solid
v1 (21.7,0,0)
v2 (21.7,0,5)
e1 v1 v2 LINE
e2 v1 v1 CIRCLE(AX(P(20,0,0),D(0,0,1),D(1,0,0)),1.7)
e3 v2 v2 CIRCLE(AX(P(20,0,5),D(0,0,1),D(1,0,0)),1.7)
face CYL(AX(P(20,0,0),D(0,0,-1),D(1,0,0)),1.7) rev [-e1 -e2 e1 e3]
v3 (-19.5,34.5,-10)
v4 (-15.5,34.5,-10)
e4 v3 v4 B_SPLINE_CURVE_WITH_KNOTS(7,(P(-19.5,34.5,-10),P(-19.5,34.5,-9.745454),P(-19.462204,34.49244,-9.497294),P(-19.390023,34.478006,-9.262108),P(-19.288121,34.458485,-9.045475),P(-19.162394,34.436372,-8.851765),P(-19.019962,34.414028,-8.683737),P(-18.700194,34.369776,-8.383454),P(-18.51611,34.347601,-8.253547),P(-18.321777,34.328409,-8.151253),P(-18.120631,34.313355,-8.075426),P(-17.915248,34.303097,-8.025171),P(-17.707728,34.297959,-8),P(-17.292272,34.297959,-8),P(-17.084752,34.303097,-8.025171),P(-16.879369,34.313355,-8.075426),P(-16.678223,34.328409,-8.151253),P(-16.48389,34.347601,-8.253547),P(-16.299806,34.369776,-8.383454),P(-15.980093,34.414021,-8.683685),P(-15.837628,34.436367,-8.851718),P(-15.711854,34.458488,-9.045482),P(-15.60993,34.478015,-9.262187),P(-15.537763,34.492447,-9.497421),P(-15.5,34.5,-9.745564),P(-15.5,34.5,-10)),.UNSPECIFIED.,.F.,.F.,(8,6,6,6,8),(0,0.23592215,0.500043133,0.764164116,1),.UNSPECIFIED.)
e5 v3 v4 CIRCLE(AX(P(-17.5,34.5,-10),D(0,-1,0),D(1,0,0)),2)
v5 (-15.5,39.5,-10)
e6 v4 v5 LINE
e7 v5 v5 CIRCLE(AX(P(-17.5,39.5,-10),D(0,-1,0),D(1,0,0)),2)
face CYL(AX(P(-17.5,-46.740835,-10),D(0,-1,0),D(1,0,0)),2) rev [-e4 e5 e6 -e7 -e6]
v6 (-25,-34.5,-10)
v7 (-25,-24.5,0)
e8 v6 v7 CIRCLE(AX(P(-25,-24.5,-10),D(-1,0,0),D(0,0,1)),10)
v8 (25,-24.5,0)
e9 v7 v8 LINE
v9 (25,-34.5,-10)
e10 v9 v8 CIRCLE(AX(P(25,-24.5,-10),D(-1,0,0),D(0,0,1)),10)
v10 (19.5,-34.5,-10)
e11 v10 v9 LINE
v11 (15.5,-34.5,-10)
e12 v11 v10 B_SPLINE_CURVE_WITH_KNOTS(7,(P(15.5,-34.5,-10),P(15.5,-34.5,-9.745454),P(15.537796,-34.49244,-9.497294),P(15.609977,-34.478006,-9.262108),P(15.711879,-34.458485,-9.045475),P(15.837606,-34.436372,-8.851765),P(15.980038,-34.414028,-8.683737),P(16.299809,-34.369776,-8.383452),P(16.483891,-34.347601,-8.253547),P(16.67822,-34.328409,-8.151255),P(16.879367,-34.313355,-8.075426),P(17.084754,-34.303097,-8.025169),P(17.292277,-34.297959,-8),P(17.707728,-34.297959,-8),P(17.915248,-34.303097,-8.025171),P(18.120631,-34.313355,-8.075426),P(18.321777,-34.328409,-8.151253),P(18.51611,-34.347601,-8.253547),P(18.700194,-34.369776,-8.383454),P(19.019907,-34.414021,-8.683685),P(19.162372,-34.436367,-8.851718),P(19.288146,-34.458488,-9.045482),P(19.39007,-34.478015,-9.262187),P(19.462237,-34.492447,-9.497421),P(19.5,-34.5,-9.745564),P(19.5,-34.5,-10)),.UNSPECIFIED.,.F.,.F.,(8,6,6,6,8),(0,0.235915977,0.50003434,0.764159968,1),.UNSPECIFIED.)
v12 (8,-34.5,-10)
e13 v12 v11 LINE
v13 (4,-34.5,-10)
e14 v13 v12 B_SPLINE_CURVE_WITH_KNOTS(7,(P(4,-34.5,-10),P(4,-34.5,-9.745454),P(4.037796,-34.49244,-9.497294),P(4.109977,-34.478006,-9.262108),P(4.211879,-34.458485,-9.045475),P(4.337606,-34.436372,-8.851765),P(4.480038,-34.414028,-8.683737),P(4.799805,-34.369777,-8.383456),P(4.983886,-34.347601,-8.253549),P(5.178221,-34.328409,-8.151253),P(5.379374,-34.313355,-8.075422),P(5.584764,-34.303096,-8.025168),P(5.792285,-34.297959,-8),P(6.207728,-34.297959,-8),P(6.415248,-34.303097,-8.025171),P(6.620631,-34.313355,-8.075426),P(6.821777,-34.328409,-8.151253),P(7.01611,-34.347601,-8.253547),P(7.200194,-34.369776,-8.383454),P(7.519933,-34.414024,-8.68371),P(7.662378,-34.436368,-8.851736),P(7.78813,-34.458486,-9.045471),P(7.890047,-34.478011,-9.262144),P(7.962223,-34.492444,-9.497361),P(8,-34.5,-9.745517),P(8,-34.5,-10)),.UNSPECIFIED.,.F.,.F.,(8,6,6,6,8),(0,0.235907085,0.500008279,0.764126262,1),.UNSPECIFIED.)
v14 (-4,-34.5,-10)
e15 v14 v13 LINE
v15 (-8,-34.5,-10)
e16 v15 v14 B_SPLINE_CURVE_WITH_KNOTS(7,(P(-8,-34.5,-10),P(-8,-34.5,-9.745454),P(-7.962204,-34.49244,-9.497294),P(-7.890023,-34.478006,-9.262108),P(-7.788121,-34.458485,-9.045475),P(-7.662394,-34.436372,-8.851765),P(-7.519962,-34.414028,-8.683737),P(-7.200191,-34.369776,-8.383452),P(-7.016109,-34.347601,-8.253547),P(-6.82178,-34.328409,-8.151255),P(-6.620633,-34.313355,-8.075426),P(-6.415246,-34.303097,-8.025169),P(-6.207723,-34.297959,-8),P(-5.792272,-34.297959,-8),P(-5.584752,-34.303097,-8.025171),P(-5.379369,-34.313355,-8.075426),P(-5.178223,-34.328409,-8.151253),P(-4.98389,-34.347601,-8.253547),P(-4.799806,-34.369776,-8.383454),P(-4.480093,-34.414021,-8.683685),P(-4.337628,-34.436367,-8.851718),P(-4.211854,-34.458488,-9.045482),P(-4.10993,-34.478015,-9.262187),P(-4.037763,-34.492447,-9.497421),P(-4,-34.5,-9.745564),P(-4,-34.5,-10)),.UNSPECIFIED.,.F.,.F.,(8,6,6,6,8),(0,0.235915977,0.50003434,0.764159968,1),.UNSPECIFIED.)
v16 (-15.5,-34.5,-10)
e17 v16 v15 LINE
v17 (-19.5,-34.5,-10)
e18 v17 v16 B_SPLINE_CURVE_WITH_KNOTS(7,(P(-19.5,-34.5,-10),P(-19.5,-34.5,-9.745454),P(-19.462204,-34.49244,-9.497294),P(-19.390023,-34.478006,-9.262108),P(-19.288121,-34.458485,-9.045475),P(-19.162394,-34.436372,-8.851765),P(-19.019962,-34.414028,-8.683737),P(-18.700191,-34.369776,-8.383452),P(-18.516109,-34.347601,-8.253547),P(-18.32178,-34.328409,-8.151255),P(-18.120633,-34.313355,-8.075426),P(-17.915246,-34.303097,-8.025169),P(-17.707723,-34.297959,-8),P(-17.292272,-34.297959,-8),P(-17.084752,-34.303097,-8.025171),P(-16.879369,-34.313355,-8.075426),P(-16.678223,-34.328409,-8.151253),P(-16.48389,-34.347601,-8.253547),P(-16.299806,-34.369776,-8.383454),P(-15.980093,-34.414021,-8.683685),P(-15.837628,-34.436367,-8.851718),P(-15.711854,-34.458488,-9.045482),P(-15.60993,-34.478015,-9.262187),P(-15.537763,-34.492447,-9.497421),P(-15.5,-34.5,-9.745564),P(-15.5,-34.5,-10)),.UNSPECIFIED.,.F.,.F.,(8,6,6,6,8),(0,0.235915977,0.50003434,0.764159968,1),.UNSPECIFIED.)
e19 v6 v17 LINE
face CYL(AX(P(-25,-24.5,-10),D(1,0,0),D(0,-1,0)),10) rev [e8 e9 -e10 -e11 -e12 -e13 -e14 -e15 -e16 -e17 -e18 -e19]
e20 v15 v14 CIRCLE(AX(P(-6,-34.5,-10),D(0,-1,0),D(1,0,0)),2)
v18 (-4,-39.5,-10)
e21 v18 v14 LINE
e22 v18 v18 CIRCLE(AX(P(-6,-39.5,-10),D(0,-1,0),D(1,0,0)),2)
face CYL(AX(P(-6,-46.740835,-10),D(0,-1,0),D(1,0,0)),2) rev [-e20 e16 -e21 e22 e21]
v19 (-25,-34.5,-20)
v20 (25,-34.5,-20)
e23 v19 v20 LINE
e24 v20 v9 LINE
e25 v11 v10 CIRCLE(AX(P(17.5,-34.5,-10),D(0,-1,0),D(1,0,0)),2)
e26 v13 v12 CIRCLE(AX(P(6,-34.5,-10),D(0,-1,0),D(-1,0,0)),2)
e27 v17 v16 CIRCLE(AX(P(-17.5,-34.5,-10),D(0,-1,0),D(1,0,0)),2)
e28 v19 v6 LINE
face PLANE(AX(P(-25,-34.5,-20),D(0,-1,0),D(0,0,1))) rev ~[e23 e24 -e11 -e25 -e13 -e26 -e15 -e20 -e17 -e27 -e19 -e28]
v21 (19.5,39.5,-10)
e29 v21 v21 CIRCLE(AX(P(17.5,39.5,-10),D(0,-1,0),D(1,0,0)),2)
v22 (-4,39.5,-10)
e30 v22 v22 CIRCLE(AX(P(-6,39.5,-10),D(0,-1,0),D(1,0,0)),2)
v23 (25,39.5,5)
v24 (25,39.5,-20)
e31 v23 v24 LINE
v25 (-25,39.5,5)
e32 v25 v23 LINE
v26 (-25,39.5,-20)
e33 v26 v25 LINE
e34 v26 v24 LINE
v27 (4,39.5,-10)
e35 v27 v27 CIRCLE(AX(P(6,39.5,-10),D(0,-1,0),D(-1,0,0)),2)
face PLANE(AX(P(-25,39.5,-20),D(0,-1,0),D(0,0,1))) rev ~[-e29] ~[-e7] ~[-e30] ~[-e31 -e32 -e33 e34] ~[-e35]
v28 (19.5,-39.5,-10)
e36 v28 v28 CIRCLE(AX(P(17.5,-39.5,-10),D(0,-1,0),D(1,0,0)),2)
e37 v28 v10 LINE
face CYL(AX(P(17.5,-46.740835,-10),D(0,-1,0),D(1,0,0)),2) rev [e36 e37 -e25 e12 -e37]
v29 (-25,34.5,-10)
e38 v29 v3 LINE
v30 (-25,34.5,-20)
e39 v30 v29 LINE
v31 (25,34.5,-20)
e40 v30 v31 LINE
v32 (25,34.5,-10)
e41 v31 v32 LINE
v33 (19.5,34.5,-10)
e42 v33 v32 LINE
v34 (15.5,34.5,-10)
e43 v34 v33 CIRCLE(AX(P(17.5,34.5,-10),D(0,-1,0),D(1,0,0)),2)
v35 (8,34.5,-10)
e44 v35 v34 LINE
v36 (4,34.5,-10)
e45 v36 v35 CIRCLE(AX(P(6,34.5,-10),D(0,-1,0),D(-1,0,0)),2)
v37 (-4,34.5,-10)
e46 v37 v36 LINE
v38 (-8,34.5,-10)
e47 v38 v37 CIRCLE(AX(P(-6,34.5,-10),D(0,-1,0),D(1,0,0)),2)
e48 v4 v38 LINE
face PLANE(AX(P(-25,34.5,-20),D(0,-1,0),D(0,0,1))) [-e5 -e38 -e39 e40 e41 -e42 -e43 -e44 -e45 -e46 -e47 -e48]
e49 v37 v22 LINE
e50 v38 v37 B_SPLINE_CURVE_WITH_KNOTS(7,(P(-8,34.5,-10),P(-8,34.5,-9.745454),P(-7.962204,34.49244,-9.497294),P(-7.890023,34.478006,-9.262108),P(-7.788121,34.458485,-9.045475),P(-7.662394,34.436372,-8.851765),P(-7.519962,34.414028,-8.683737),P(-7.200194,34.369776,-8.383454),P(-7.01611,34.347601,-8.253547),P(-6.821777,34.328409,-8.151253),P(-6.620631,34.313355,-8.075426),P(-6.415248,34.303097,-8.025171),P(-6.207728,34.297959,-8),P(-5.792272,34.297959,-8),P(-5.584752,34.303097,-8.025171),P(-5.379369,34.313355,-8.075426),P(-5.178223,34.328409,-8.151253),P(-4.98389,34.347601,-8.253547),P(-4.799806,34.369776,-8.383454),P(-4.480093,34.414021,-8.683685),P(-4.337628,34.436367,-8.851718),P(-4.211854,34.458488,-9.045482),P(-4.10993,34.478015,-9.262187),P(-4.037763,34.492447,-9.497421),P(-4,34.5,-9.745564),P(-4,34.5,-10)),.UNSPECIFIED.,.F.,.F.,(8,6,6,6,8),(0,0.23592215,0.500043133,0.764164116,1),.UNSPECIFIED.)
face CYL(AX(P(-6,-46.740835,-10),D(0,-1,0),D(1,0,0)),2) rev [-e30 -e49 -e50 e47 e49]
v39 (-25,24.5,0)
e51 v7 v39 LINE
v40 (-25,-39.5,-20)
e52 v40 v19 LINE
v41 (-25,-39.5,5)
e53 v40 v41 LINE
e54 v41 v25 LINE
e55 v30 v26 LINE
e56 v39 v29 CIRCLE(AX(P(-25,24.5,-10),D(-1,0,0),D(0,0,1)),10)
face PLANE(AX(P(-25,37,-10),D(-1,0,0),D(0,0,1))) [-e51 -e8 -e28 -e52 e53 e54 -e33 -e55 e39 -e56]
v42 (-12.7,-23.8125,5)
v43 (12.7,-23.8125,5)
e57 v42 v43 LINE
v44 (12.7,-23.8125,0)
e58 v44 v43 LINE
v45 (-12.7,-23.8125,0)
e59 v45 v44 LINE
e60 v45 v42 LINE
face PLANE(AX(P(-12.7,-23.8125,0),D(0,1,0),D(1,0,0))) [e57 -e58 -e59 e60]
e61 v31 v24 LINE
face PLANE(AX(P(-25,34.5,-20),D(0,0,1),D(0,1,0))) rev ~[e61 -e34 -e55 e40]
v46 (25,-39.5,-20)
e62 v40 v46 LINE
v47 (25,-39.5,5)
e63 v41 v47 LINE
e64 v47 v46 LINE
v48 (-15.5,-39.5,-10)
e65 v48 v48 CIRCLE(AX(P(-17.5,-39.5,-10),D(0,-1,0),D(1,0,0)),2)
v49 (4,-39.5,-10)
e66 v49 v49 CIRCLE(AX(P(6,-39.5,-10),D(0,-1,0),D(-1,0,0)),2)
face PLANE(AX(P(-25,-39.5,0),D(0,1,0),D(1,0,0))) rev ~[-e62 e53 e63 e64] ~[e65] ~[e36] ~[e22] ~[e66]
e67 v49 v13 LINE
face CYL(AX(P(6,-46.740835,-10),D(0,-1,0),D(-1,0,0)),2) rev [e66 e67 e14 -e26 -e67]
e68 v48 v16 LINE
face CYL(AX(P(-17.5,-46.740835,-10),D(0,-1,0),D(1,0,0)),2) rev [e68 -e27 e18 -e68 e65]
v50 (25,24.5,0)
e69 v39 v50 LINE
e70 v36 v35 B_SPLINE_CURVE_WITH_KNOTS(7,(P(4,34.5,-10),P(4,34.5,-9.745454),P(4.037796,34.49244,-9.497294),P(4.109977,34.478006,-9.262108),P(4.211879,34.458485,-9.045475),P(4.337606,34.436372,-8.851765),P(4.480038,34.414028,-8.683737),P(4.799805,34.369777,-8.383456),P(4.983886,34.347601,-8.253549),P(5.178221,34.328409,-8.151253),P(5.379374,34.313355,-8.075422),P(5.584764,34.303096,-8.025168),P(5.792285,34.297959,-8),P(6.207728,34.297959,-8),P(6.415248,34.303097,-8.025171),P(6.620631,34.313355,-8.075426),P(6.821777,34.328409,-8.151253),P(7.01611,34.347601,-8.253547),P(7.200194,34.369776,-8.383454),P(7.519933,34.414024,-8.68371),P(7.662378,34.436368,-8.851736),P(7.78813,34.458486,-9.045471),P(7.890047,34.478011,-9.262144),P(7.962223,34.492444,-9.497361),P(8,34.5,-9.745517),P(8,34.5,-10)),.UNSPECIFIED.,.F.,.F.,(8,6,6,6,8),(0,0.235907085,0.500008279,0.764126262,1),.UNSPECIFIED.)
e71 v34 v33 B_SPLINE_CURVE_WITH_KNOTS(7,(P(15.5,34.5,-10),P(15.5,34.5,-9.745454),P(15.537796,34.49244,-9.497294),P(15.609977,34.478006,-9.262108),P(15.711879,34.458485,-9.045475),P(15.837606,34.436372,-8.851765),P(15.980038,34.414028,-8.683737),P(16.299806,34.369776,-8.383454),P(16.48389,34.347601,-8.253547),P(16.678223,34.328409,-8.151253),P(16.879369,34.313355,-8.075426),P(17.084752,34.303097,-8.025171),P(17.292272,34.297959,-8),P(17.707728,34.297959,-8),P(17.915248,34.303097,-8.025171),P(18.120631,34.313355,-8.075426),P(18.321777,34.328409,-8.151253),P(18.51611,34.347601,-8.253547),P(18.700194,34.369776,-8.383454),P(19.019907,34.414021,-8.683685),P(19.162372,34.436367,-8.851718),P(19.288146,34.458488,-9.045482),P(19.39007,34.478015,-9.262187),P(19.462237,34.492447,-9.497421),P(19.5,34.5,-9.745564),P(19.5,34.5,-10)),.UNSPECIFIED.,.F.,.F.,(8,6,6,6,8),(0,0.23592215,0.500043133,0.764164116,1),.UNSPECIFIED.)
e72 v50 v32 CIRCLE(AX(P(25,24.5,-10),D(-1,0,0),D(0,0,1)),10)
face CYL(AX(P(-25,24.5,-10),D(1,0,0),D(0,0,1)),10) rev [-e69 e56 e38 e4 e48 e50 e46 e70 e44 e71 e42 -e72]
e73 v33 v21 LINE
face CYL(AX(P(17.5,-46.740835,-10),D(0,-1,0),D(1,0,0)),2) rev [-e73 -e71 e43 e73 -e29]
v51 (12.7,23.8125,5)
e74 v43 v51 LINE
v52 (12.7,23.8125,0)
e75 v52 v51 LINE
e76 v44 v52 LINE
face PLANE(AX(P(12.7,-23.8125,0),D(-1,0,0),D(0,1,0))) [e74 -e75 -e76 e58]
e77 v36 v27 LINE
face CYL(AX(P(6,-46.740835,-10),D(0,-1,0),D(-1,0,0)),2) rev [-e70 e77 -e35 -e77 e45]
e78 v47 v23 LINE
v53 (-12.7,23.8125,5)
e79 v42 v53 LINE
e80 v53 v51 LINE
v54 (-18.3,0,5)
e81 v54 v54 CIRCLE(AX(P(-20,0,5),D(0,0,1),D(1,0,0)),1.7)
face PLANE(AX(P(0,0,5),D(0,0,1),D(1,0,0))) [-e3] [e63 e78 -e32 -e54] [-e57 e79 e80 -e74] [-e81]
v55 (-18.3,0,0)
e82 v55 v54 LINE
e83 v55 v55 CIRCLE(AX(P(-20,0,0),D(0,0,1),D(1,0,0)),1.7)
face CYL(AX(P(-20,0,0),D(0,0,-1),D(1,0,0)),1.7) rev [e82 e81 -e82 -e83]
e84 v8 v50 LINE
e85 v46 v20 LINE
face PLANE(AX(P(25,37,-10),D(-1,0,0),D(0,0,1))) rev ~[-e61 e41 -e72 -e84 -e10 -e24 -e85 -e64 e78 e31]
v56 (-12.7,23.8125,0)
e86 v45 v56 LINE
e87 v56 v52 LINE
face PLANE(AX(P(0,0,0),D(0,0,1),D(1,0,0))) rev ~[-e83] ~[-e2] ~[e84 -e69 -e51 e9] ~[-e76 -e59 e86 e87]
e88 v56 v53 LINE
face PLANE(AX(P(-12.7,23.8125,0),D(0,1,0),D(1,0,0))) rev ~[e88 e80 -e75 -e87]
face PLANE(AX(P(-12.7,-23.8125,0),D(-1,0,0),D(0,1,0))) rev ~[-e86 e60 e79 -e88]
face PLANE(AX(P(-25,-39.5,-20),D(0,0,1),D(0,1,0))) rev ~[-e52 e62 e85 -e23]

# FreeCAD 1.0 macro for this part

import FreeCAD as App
import Part
import Sketcher
from FreeCAD import Vector


def edges_at(feature, points):
    """Names of the edges that pass closest to the given points."""
    edges = feature.Shape.Edges
    near = lambda p: min(range(len(edges)), key=lambda i: edges[i].distToShape(Part.Vertex(*p))[0])
    return sorted({f"Edge{near(p) + 1}" for p in points})

doc = App.newDocument("Part")
body = doc.addObject("PartDesign::Body", "Body")

# Sketch on XY plane
sketch1 = body.newObject("Sketcher::SketchObject", "Sketch")
sketch1.AttachmentSupport = (doc.getObject("XY_Plane"), [""])
sketch1.MapMode = "FlatFace"
sketch1.addGeometry([
    Part.LineSegment(Vector(-25, 39.5, 0), Vector(-25, -39.5, 0)),  # 0
    Part.LineSegment(Vector(-25, -39.5, 0), Vector(25, -39.5, 0)),  # 1
    Part.LineSegment(Vector(25, -39.5, 0), Vector(25, 39.5, 0)),  # 2
    Part.LineSegment(Vector(25, 39.5, 0), Vector(-25, 39.5, 0)),  # 3
    Part.Circle(Vector(-20, 0, 0), Vector(0, 0, 1), 1.7),  # 4
    Part.LineSegment(Vector(12.7, -23.8125, 0), Vector(-12.7, -23.8125, 0)),  # 5
    Part.LineSegment(Vector(-12.7, -23.8125, 0), Vector(-12.7, 23.8125, 0)),  # 6
    Part.LineSegment(Vector(-12.7, 23.8125, 0), Vector(12.7, 23.8125, 0)),  # 7
    Part.LineSegment(Vector(12.7, 23.8125, 0), Vector(12.7, -23.8125, 0)),  # 8
    Part.Circle(Vector(20, 0, 0), Vector(0, 0, 1), 1.7),  # 9
], False)
sketch1.addConstraint([
    Sketcher.Constraint("Coincident", 0, 2, 1, 1),
    Sketcher.Constraint("Coincident", 1, 2, 2, 1),
    Sketcher.Constraint("Coincident", 2, 2, 3, 1),
    Sketcher.Constraint("Coincident", 3, 2, 0, 1),
    Sketcher.Constraint("Coincident", 5, 2, 6, 1),
    Sketcher.Constraint("Coincident", 6, 2, 7, 1),
    Sketcher.Constraint("Coincident", 7, 2, 8, 1),
    Sketcher.Constraint("Coincident", 8, 2, 5, 1),
    Sketcher.Constraint("Vertical", 0),
    Sketcher.Constraint("Horizontal", 1),
    Sketcher.Constraint("Vertical", 2),
    Sketcher.Constraint("Horizontal", 3),
    Sketcher.Constraint("Horizontal", 5),
    Sketcher.Constraint("Vertical", 6),
    Sketcher.Constraint("Horizontal", 7),
    Sketcher.Constraint("Vertical", 8),
    Sketcher.Constraint("Equal", 4, 9),
    Sketcher.Constraint("Symmetric", 4, 3, 9, 3, -1, 1),
    Sketcher.Constraint("Symmetric", 0, 2, 2, 2, -1, 1),
    Sketcher.Constraint("Symmetric", 5, 2, 7, 2, -1, 1),
    Sketcher.Constraint("PointOnObject", 4, 3, -1),
    Sketcher.Constraint("Diameter", 4, 3.4),
    Sketcher.Constraint("DistanceX", 1, 1, 1, 2, 50.0),
    Sketcher.Constraint("DistanceY", 0, 2, 0, 1, 79.0),
    Sketcher.Constraint("DistanceX", 5, 2, 5, 1, 25.4),
    Sketcher.Constraint("DistanceX", 4, 3, -1, 1, 20.0),
    Sketcher.Constraint("DistanceY", 6, 1, 6, 2, 47.625),
])
pad1 = body.newObject("PartDesign::Pad", "Pad")
pad1.Profile = sketch1
pad1.Length = 5

# Sketch on YZ plane
sketch2 = body.newObject("Sketcher::SketchObject", "Sketch001")
sketch2.AttachmentSupport = (doc.getObject("YZ_Plane"), [""])
sketch2.MapMode = "FlatFace"
sketch2.AttachmentOffset = App.Placement(Vector(0, 0, -25), App.Rotation())
sketch2.addGeometry([
    Part.LineSegment(Vector(39.5, -20, 0), Vector(34.5, -20, 0)),  # 0
    Part.LineSegment(Vector(34.5, -20, 0), Vector(34.5, 0, 0)),  # 1
    Part.LineSegment(Vector(34.5, 0, 0), Vector(39.5, 0, 0)),  # 2
    Part.LineSegment(Vector(39.5, 0, 0), Vector(39.5, -20, 0)),  # 3
    Part.LineSegment(Vector(-34.5, -20, 0), Vector(-39.5, -20, 0)),  # 4
    Part.LineSegment(Vector(-39.5, -20, 0), Vector(-39.5, 0, 0)),  # 5
    Part.LineSegment(Vector(-39.5, 0, 0), Vector(-34.5, 0, 0)),  # 6
    Part.LineSegment(Vector(-34.5, 0, 0), Vector(-34.5, -20, 0)),  # 7
], False)
sketch2.addConstraint([
    Sketcher.Constraint("Coincident", 0, 2, 1, 1),
    Sketcher.Constraint("Coincident", 1, 2, 2, 1),
    Sketcher.Constraint("Coincident", 2, 2, 3, 1),
    Sketcher.Constraint("Coincident", 3, 2, 0, 1),
    Sketcher.Constraint("Coincident", 4, 2, 5, 1),
    Sketcher.Constraint("Coincident", 5, 2, 6, 1),
    Sketcher.Constraint("Coincident", 6, 2, 7, 1),
    Sketcher.Constraint("Coincident", 7, 2, 4, 1),
    Sketcher.Constraint("Horizontal", 0),
    Sketcher.Constraint("Vertical", 1),
    Sketcher.Constraint("Horizontal", 2),
    Sketcher.Constraint("Vertical", 3),
    Sketcher.Constraint("Horizontal", 4),
    Sketcher.Constraint("Vertical", 5),
    Sketcher.Constraint("Horizontal", 6),
    Sketcher.Constraint("Vertical", 7),
    Sketcher.Constraint("Symmetric", 2, 2, 5, 2, -1, 1),
    Sketcher.Constraint("Symmetric", 1, 2, 6, 2, -2),
    Sketcher.Constraint("Horizontal", 3, 2, 4, 2),
    Sketcher.Constraint("DistanceX", 0, 2, 0, 1, 5.0),
    Sketcher.Constraint("DistanceY", 1, 1, 1, 2, 20.0),
    Sketcher.Constraint("DistanceX", 4, 2, 0, 2, 74.0),
])
pad2 = body.newObject("PartDesign::Pad", "Pad001")
pad2.Profile = sketch2
pad2.Length = 50
doc.recompute()

fillet = body.newObject("PartDesign::Fillet", "Fillet")
fillet.Base = (pad2, edges_at(pad2, [(0, 34.5, 0), (0, -34.5, 0)]))
fillet.Radius = 10

# Sketch on XZ plane
sketch3 = body.newObject("Sketcher::SketchObject", "Sketch002")
sketch3.AttachmentSupport = (doc.getObject("XZ_Plane"), [""])
sketch3.MapMode = "FlatFace"
sketch3.AttachmentOffset = App.Placement(Vector(0, 0, -39.5), App.Rotation())
sketch3.addGeometry([
    Part.Circle(Vector(-17.5, -10, 0), Vector(0, 0, 1), 2),
    Part.Circle(Vector(-6, -10, 0), Vector(0, 0, 1), 2),
    Part.Circle(Vector(6, -10, 0), Vector(0, 0, 1), 2),
    Part.Circle(Vector(17.5, -10, 0), Vector(0, 0, 1), 2),
], False)
sketch3.addConstraint([
    Sketcher.Constraint("Equal", 0, 1),
    Sketcher.Constraint("Equal", 1, 2),
    Sketcher.Constraint("Equal", 2, 3),
    Sketcher.Constraint("Symmetric", 1, 3, 2, 3, -2),
    Sketcher.Constraint("Symmetric", 0, 3, 3, 3, -2),
    Sketcher.Constraint("Horizontal", 0, 3, 1, 3),
    Sketcher.Constraint("Diameter", 0, 4.0),
    Sketcher.Constraint("DistanceY", 0, 3, -1, 1, 10.0),
    Sketcher.Constraint("DistanceX", 1, 3, -1, 1, 6.0),
    Sketcher.Constraint("DistanceX", 0, 3, 3, 3, 35.0),
])
pocket1 = body.newObject("PartDesign::Pocket", "Pocket")
pocket1.Profile = sketch3
pocket1.Type = "ThroughAll"
pocket1.Midplane = True

doc.recompute()
